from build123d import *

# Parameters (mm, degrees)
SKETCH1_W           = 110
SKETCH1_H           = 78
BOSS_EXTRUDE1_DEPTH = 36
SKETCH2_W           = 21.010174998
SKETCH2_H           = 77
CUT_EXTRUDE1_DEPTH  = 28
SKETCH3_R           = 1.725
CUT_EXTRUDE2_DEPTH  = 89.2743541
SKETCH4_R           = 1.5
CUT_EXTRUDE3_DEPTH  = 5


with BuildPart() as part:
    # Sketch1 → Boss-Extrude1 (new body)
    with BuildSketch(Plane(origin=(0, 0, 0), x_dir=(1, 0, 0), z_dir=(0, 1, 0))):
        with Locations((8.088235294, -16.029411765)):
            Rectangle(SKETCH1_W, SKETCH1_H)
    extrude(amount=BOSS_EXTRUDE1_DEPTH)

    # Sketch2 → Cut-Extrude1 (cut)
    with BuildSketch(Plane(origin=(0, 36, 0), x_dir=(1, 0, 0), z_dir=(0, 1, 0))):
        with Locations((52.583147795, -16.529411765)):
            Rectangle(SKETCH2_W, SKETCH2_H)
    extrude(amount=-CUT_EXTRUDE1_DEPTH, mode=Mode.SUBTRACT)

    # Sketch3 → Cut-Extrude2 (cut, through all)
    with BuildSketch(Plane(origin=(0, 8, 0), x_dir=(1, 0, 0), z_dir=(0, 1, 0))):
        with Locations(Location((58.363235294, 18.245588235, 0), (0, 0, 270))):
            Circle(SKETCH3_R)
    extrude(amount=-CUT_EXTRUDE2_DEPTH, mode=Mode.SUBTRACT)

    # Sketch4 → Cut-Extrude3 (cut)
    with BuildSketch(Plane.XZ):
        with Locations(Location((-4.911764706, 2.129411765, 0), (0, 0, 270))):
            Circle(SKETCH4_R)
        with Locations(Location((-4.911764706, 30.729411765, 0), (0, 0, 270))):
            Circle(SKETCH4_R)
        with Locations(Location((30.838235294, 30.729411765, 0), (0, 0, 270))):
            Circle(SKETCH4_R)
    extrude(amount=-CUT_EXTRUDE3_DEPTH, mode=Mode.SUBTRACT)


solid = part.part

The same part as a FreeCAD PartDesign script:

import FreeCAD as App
import Part
import Sketcher
Q = App.Units.Quantity

doc = App.newDocument("Part")
body = doc.addObject("PartDesign::Body", "Body")

# Sketch on XZ plane
sketch1 = doc.addObject("Sketcher::SketchObject", "Sketch")
body.addObject(sketch1)
sketch1.AttachmentSupport = (doc.XZ_Plane, [""])
sketch1.MapMode = "FlatFace"
sketch1.addGeometry(Part.LineSegment(App.Vector(-47, -23, 0), App.Vector(-47, 55, 0)), False)
sketch1.addGeometry(Part.LineSegment(App.Vector(-47, 55, 0), App.Vector(63, 55, 0)), False)
sketch1.addGeometry(Part.LineSegment(App.Vector(63, 55, 0), App.Vector(63, -23, 0)), False)
sketch1.addGeometry(Part.LineSegment(App.Vector(63, -23, 0), App.Vector(-47, -23, 0)), False)
sketch1.addConstraint(Sketcher.Constraint("Coincident", 0, 2, 1, 1))
sketch1.addConstraint(Sketcher.Constraint("Coincident", 1, 2, 2, 1))
sketch1.addConstraint(Sketcher.Constraint("Coincident", 2, 2, 3, 1))
sketch1.addConstraint(Sketcher.Constraint("Coincident", 3, 2, 0, 1))
sketch1.addConstraint(Sketcher.Constraint("Vertical", 0))
sketch1.addConstraint(Sketcher.Constraint("Horizontal", 1))
sketch1.addConstraint(Sketcher.Constraint("Vertical", 2))
sketch1.addConstraint(Sketcher.Constraint("Horizontal", 3))
sketch1.addConstraint(Sketcher.Constraint("DistanceX", 1, 1, 1, 2, Q("110 mm")))
sketch1.addConstraint(Sketcher.Constraint("DistanceY", 0, 1, 0, 2, Q("78 mm")))
sketch1.addConstraint(Sketcher.Constraint("DistanceY", -1, 1, 0, 2, Q("55.029412 mm")))
sketch1.addConstraint(Sketcher.Constraint("DistanceX", 0, 2, -1, 1, Q("46.911765 mm")))
pad1 = doc.addObject("PartDesign::Pad", "Pad")
body.addObject(pad1)
pad1.Profile = sketch1
pad1.Length = 36
pad1.Reversed = True

# Sketch on XZ plane
sketch2 = doc.addObject("Sketcher::SketchObject", "Sketch001")
body.addObject(sketch2)
sketch2.AttachmentSupport = (doc.XZ_Plane, [""])
sketch2.MapMode = "FlatFace"
sketch2.AttachmentOffset = App.Placement(App.Vector(0, 0, -36), App.Rotation())
sketch2.addGeometry(Part.LineSegment(App.Vector(42, -22, 0), App.Vector(42, 55, 0)), False)
sketch2.addGeometry(Part.LineSegment(App.Vector(42, 55, 0), App.Vector(63, 55, 0)), False)
sketch2.addGeometry(Part.LineSegment(App.Vector(63, 55, 0), App.Vector(63, -22, 0)), False)
sketch2.addGeometry(Part.LineSegment(App.Vector(63, -22, 0), App.Vector(42, -22, 0)), False)
sketch2.addConstraint(Sketcher.Constraint("Coincident", 0, 2, 1, 1))
sketch2.addConstraint(Sketcher.Constraint("Coincident", 1, 2, 2, 1))
sketch2.addConstraint(Sketcher.Constraint("Coincident", 2, 2, 3, 1))
sketch2.addConstraint(Sketcher.Constraint("Coincident", 3, 2, 0, 1))
sketch2.addConstraint(Sketcher.Constraint("Vertical", 0))
sketch2.addConstraint(Sketcher.Constraint("Horizontal", 1))
sketch2.addConstraint(Sketcher.Constraint("Vertical", 2))
sketch2.addConstraint(Sketcher.Constraint("Horizontal", 3))
sketch2.addConstraint(Sketcher.Constraint("DistanceY", 0, 1, 0, 2, Q("77 mm")))
sketch2.addConstraint(Sketcher.Constraint("DistanceX", 1, 1, 1, 2, Q("21.010175 mm")))
sketch2.addConstraint(Sketcher.Constraint("DistanceX", -1, 1, 0, 2, Q("42.07806 mm")))
sketch2.addConstraint(Sketcher.Constraint("DistanceY", -1, 1, 0, 2, Q("55.029412 mm")))
pocket1 = doc.addObject("PartDesign::Pocket", "Pocket")
body.addObject(pocket1)
pocket1.Profile = sketch2
pocket1.Length = 28
pocket1.Reversed = True

# Sketch on XZ plane
sketch3 = doc.addObject("Sketcher::SketchObject", "Sketch002")
body.addObject(sketch3)
sketch3.AttachmentSupport = (doc.XZ_Plane, [""])
sketch3.MapMode = "FlatFace"
sketch3.AttachmentOffset = App.Placement(App.Vector(0, 0, -8), App.Rotation())
sketch3.addGeometry(Part.Circle(App.Vector(58.4, -18.2, 0), App.Vector(0, 0, 1), 1.7), False)
sketch3.addConstraint(Sketcher.Constraint("Diameter", 0, Q("3.45 mm")))
sketch3.addConstraint(Sketcher.Constraint("DistanceY", 0, 3, -1, 1, Q("18.245588 mm")))
sketch3.addConstraint(Sketcher.Constraint("DistanceX", -1, 1, 0, 3, Q("58.363235 mm")))
pocket2 = doc.addObject("PartDesign::Pocket", "Pocket001")
body.addObject(pocket2)
pocket2.Profile = sketch3
pocket2.Type = "ThroughAll"
pocket2.Reversed = True

# Sketch on XZ plane
sketch4 = doc.addObject("Sketcher::SketchObject", "Sketch003")
body.addObject(sketch4)
sketch4.AttachmentSupport = (doc.XZ_Plane, [""])
sketch4.MapMode = "FlatFace"
sketch4.addGeometry(Part.Circle(App.Vector(-4.9, 2.1, 0), App.Vector(0, 0, 1), 1.5), False)
sketch4.addGeometry(Part.Circle(App.Vector(-4.9, 30.7, 0), App.Vector(0, 0, 1), 1.5), False)
sketch4.addGeometry(Part.Circle(App.Vector(30.8, 30.7, 0), App.Vector(0, 0, 1), 1.5), False)
sketch4.addConstraint(Sketcher.Constraint("Equal", 0, 1))
sketch4.addConstraint(Sketcher.Constraint("Equal", 1, 2))
sketch4.addConstraint(Sketcher.Constraint("Horizontal", 1, 3, 2, 3))
sketch4.addConstraint(Sketcher.Constraint("Vertical", 0, 3, 1, 3))
sketch4.addConstraint(Sketcher.Constraint("Diameter", 0, Q("3 mm")))
sketch4.addConstraint(Sketcher.Constraint("DistanceY", 0, 3, 1, 3, Q("28.6 mm")))
sketch4.addConstraint(Sketcher.Constraint("DistanceX", 1, 3, 2, 3, Q("35.75 mm")))
sketch4.addConstraint(Sketcher.Constraint("DistanceY", -1, 1, 0, 3, Q("2.129412 mm")))
sketch4.addConstraint(Sketcher.Constraint("DistanceX", 0, 3, -1, 1, Q("4.911765 mm")))
pocket3 = doc.addObject("PartDesign::Pocket", "Pocket002")
body.addObject(pocket3)
pocket3.Profile = sketch4
pocket3.Length = 5

doc.recompute()
